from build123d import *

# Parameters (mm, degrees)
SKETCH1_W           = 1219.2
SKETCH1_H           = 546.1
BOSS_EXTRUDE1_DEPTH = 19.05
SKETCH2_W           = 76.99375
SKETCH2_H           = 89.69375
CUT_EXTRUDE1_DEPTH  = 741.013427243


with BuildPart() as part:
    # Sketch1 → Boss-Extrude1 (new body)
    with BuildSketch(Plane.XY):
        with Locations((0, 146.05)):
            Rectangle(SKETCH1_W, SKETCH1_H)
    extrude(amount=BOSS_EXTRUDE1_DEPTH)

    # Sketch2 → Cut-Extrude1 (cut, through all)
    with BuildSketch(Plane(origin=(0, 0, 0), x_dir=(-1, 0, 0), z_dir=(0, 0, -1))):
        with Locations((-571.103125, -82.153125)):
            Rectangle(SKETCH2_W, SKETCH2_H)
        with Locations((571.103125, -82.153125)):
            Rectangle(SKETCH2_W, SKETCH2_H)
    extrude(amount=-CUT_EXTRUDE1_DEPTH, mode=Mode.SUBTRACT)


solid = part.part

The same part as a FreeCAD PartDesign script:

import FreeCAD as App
import Part
import Sketcher

V = App.Vector
Q = App.Units.Quantity


def add_polygon(sketch, points):
    """Adds a closed chain of lines whose ends are joined by coincident constraints."""
    first, n = sketch.GeometryCount, len(points)
    for a, b in zip(points, points[1:] + points[:1]):
        sketch.addGeometry(Part.LineSegment(App.Vector(*a, 0), App.Vector(*b, 0)), False)
    for i in range(n):
        sketch.addConstraint(Sketcher.Constraint("Coincident", first + i, 2, first + (i + 1) % n, 1))

doc = App.newDocument("Part")
body = doc.addObject("PartDesign::Body", "Body")

# Sketch on XY plane
sketch1 = body.newObject("Sketcher::SketchObject", "Sketch")
sketch1.AttachmentSupport = (doc.getObject("XY_Plane"), [""])
sketch1.MapMode = "FlatFace"
add_polygon(sketch1, [(-609.6, 419.1), (-609.6, -127), (609.6, -127), (609.6, 419.1)])  # lines 0-3
sketch1.addConstraint(Sketcher.Constraint("Vertical", 0))
sketch1.addConstraint(Sketcher.Constraint("Horizontal", 1))
sketch1.addConstraint(Sketcher.Constraint("Vertical", 2))
sketch1.addConstraint(Sketcher.Constraint("Horizontal", 3))
sketch1.addConstraint(Sketcher.Constraint("DistanceX", 1, 1, 1, 2, Q("48 in")))
sketch1.addConstraint(Sketcher.Constraint("DistanceY", 0, 2, 0, 1, Q("21.5 in")))
sketch1.addConstraint(Sketcher.Constraint("DistanceX", 0, 2, -1, 1, Q("24 in")))
sketch1.addConstraint(Sketcher.Constraint("DistanceY", 0, 2, -1, 1, Q("5 in")))
pad1 = body.newObject("PartDesign::Pad", "Pad")
pad1.Profile = sketch1
pad1.Length = Q("0.75 in")

# Sketch on XY plane
sketch2 = body.newObject("Sketcher::SketchObject", "Sketch001")
sketch2.AttachmentSupport = (doc.getObject("XY_Plane"), [""])
sketch2.MapMode = "FlatFace"
add_polygon(sketch2, [(609.6, -37.30625), (609.6, -127), (532.60625, -127), (532.60625, -37.30625)])  # lines 0-3
add_polygon(sketch2, [(-532.60625, -37.30625), (-532.60625, -127), (-609.6, -127), (-609.6, -37.30625)])  # lines 4-7
sketch2.addConstraint(Sketcher.Constraint("Vertical", 0))
sketch2.addConstraint(Sketcher.Constraint("Horizontal", 1))
sketch2.addConstraint(Sketcher.Constraint("Vertical", 2))
sketch2.addConstraint(Sketcher.Constraint("Horizontal", 3))
sketch2.addConstraint(Sketcher.Constraint("Vertical", 4))
sketch2.addConstraint(Sketcher.Constraint("Horizontal", 5))
sketch2.addConstraint(Sketcher.Constraint("Vertical", 6))
sketch2.addConstraint(Sketcher.Constraint("Horizontal", 7))
sketch2.addConstraint(Sketcher.Constraint("Symmetric", 1, 2, 4, 2, -2))
sketch2.addConstraint(Sketcher.Constraint("Symmetric", 3, 2, 6, 2, -2))
sketch2.addConstraint(Sketcher.Constraint("DistanceX", -1, 1, 0, 2, Q("24 in")))
sketch2.addConstraint(Sketcher.Constraint("DistanceY", 0, 2, -1, 1, Q("5 in")))
sketch2.addConstraint(Sketcher.Constraint("DistanceX", 1, 2, 1, 1, Q("3.03125 in")))
sketch2.addConstraint(Sketcher.Constraint("DistanceY", 0, 2, 0, 1, Q("3.53125 in")))
pocket1 = body.newObject("PartDesign::Pocket", "Pocket")
pocket1.Profile = sketch2
pocket1.Type = "ThroughAll"
pocket1.Reversed = True

doc.recompute()
